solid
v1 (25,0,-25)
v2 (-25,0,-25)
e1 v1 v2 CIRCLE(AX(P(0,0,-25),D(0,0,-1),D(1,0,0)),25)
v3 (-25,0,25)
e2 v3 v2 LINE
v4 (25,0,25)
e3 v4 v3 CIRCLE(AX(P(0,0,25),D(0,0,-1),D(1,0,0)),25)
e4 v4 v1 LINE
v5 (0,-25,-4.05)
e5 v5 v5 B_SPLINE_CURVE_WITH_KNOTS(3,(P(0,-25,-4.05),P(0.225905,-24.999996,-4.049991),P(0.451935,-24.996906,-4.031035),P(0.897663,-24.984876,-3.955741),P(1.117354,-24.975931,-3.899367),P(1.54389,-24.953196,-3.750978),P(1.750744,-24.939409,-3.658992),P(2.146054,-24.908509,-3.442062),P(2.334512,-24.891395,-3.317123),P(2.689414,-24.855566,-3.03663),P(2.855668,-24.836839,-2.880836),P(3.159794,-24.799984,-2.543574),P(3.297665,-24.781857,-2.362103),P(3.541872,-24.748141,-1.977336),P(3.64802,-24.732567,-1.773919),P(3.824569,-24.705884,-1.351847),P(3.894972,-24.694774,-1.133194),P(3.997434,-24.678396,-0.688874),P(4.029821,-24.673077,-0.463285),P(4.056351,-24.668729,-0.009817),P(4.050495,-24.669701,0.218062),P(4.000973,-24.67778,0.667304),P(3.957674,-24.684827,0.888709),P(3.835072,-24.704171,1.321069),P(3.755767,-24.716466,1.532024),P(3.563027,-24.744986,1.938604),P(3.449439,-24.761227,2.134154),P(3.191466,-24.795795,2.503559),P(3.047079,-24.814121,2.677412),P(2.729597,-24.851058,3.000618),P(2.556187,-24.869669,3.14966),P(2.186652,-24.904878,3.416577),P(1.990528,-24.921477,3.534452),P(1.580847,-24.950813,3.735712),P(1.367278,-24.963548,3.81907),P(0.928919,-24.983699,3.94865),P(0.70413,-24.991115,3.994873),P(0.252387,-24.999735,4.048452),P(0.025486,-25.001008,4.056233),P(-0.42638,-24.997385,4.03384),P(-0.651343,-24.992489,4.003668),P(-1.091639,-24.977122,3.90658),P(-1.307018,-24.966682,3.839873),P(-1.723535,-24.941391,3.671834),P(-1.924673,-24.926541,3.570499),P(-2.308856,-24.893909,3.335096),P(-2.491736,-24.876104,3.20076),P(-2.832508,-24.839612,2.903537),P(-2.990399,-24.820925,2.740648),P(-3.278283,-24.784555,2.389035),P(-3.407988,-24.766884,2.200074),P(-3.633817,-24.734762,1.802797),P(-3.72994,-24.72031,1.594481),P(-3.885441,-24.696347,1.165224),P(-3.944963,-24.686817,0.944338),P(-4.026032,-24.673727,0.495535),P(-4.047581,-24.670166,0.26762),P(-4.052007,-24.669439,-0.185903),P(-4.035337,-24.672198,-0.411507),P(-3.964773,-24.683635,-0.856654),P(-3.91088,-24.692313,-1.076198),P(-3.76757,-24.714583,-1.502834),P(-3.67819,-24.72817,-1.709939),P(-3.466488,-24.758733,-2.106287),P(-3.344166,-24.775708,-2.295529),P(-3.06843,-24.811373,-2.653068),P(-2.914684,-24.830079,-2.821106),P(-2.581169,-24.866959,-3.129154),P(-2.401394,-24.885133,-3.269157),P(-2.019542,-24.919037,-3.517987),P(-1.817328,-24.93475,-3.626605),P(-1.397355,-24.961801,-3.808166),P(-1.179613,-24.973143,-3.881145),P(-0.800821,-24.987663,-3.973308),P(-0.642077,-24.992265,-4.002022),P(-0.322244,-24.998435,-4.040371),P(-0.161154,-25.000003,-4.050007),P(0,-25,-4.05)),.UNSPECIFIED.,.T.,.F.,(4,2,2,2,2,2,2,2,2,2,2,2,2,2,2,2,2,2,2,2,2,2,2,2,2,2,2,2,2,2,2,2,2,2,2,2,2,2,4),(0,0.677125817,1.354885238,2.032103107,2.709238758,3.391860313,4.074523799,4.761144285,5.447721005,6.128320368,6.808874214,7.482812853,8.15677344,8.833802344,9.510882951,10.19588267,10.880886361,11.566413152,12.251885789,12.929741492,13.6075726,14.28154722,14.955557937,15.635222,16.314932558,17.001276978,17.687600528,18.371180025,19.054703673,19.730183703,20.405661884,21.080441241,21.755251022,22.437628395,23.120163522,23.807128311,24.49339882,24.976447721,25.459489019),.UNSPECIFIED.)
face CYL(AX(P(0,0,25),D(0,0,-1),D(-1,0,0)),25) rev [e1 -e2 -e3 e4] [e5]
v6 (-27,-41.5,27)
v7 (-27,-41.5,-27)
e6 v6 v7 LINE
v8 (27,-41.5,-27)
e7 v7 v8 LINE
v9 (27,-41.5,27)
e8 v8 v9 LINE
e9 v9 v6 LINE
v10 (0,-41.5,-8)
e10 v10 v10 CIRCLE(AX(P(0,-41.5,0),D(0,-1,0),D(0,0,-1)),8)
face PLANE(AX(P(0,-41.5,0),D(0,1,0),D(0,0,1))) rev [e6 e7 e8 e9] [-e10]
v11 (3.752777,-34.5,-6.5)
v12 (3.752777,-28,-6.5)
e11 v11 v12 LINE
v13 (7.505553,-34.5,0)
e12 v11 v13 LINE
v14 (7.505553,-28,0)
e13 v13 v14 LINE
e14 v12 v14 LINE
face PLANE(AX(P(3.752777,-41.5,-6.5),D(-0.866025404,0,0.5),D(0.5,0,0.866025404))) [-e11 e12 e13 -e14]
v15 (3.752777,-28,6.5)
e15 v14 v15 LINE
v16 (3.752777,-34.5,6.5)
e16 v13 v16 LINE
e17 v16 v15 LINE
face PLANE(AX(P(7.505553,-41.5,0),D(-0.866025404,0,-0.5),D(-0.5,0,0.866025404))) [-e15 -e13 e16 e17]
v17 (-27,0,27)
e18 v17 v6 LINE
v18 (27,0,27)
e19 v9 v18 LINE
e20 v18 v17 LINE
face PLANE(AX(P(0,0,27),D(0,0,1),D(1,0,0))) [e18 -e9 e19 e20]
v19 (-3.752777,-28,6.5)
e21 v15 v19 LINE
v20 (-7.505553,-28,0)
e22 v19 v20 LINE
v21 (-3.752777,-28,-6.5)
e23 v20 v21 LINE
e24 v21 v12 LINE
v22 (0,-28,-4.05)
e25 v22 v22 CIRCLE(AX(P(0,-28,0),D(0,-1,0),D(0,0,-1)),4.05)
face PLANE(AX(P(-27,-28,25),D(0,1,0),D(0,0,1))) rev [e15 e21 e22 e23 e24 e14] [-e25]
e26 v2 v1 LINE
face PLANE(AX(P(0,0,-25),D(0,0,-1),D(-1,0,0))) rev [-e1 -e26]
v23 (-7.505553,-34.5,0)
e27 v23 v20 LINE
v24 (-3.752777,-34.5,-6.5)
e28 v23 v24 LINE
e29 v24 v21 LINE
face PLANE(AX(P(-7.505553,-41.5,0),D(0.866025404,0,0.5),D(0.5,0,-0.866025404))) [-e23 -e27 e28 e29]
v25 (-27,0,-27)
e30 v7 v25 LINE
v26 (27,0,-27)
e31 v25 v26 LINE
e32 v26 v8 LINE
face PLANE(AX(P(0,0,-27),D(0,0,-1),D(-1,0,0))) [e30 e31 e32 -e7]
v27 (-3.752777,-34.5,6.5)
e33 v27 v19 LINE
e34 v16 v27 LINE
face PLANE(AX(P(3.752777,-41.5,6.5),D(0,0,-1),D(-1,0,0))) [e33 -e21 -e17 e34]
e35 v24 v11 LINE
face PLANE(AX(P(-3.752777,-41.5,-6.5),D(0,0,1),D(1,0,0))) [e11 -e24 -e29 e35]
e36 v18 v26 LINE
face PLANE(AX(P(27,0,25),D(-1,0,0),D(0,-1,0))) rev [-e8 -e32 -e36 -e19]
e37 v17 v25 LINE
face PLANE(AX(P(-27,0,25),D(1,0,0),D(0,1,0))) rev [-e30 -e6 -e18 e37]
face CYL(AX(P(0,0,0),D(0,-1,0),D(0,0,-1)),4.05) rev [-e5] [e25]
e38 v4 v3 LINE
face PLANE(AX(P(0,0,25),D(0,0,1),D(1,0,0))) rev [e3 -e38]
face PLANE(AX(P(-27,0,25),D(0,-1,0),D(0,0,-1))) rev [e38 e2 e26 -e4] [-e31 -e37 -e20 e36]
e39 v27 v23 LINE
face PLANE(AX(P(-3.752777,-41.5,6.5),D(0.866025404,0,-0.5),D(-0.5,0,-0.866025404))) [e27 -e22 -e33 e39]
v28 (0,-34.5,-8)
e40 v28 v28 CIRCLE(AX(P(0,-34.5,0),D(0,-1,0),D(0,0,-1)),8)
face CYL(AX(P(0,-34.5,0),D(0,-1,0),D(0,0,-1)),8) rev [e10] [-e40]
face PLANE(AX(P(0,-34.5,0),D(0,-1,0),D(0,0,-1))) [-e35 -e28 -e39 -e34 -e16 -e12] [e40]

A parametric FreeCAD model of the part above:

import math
import FreeCAD as App
import Part
import Sketcher
Q = App.Units.Quantity


def add_polygon(sketch, points):
    """Adds a closed chain of lines whose ends are joined by coincident constraints."""
    first, n = sketch.GeometryCount, len(points)
    for a, b in zip(points, points[1:] + points[:1]):
        sketch.addGeometry(Part.LineSegment(App.Vector(*a, 0), App.Vector(*b, 0)), False)
    for i in range(n):
        sketch.addConstraint(Sketcher.Constraint("Coincident", first + i, 2, first + (i + 1) % n, 1))

doc = App.newDocument("Part")
body = doc.addObject("PartDesign::Body", "Body")

# Sketch on XY plane
sketch1 = body.newObject("Sketcher::SketchObject", "Sketch")
sketch1.AttachmentSupport = (doc.getObject("XY_Plane"), [""])
sketch1.MapMode = "FlatFace"
sketch1.addGeometry(Part.LineSegment(App.Vector(27, 0, 0), App.Vector(25, 0, 0)), False)
sketch1.addGeometry(Part.ArcOfCircle(Part.Circle(App.Vector(0, 0, 0), App.Vector(0, 0, 1), 25), math.radians(180), math.radians(360)), False)
sketch1.addGeometry(Part.LineSegment(App.Vector(-25, 0, 0), App.Vector(-27, 0, 0)), False)
sketch1.addGeometry(Part.LineSegment(App.Vector(-27, 0, 0), App.Vector(-27, -28, 0)), False)
sketch1.addGeometry(Part.LineSegment(App.Vector(-27, -28, 0), App.Vector(27, -28, 0)), False)
sketch1.addGeometry(Part.LineSegment(App.Vector(27, -28, 0), App.Vector(27, 0, 0)), False)
sketch1.addConstraint(Sketcher.Constraint("Coincident", 0, 2, 1, 2))
sketch1.addConstraint(Sketcher.Constraint("Coincident", 1, 1, 2, 1))
sketch1.addConstraint(Sketcher.Constraint("Coincident", 2, 2, 3, 1))
sketch1.addConstraint(Sketcher.Constraint("Coincident", 3, 2, 4, 1))
sketch1.addConstraint(Sketcher.Constraint("Coincident", 4, 2, 5, 1))
sketch1.addConstraint(Sketcher.Constraint("Coincident", 5, 2, 0, 1))
sketch1.addConstraint(Sketcher.Constraint("Horizontal", 0))
sketch1.addConstraint(Sketcher.Constraint("Horizontal", 2))
sketch1.addConstraint(Sketcher.Constraint("Vertical", 3))
sketch1.addConstraint(Sketcher.Constraint("Horizontal", 4))
sketch1.addConstraint(Sketcher.Constraint("Vertical", 5))
sketch1.addConstraint(Sketcher.Constraint("Coincident", 1, 3, -1, 1))
sketch1.addConstraint(Sketcher.Constraint("Symmetric", 2, 2, 5, 2, -1, 1))
sketch1.addConstraint(Sketcher.Constraint("PointOnObject", 0, 2, -1))
sketch1.addConstraint(Sketcher.Constraint("Radius", 1, 25.0))
sketch1.addConstraint(Sketcher.Constraint("DistanceX", 0, 2, 0, 1, 2.0))
sketch1.addConstraint(Sketcher.Constraint("DistanceY", 3, 2, 3, 1, 28.0))
pad1 = body.newObject("PartDesign::Pad", "Pad")
pad1.Profile = sketch1
pad1.Length = 50
pad1.Midplane = True

# Sketch on XY plane
sketch2 = body.newObject("Sketcher::SketchObject", "Sketch001")
sketch2.AttachmentSupport = (doc.getObject("XY_Plane"), [""])
sketch2.MapMode = "FlatFace"
sketch2.AttachmentOffset = App.Placement(App.Vector(0, 0, 25), App.Rotation())
add_polygon(sketch2, [(-27, 0), (-27, -28), (27, -28), (27, 0)])  # lines 0-3
sketch2.addConstraint(Sketcher.Constraint("Vertical", 0))
sketch2.addConstraint(Sketcher.Constraint("Horizontal", 1))
sketch2.addConstraint(Sketcher.Constraint("Vertical", 2))
sketch2.addConstraint(Sketcher.Constraint("Horizontal", 3))
sketch2.addConstraint(Sketcher.Constraint("Symmetric", 2, 2, 3, 2, -1, 1))
sketch2.addConstraint(Sketcher.Constraint("DistanceX", 1, 1, 1, 2, 54.0))
sketch2.addConstraint(Sketcher.Constraint("DistanceY", 0, 2, 0, 1, 28.0))
pad2 = body.newObject("PartDesign::Pad", "Pad001")
pad2.Profile = sketch2
pad2.Length = 2

# Sketch on XY plane
sketch3 = body.newObject("Sketcher::SketchObject", "Sketch002")
sketch3.AttachmentSupport = (doc.getObject("XY_Plane"), [""])
sketch3.MapMode = "FlatFace"
sketch3.AttachmentOffset = App.Placement(App.Vector(0, 0, -25), App.Rotation())
add_polygon(sketch3, [(27, 0), (27, -28), (-27, -28), (-27, 0)])  # lines 0-3
sketch3.addConstraint(Sketcher.Constraint("Vertical", 0))
sketch3.addConstraint(Sketcher.Constraint("Horizontal", 1))
sketch3.addConstraint(Sketcher.Constraint("Vertical", 2))
sketch3.addConstraint(Sketcher.Constraint("Horizontal", 3))
sketch3.addConstraint(Sketcher.Constraint("Symmetric", 2, 2, 3, 2, -1, 1))
sketch3.addConstraint(Sketcher.Constraint("DistanceX", 1, 2, 1, 1, 54.0))
sketch3.addConstraint(Sketcher.Constraint("DistanceY", 0, 2, 0, 1, 28.0))
pad3 = body.newObject("PartDesign::Pad", "Pad002")
pad3.Profile = sketch3
pad3.Length = 2
pad3.Reversed = True

# Sketch on XZ plane
sketch4 = body.newObject("Sketcher::SketchObject", "Sketch003")
sketch4.AttachmentSupport = (doc.getObject("XZ_Plane"), [""])
sketch4.MapMode = "FlatFace"
sketch4.AttachmentOffset = App.Placement(App.Vector(0, 0, 28), App.Rotation())
sketch4.addGeometry(Part.Circle(App.Vector(0, 0, 0), App.Vector(0, 0, 1), 4.05), False)
sketch4.addConstraint(Sketcher.Constraint("Coincident", 0, 3, -1, 1))
sketch4.addConstraint(Sketcher.Constraint("Diameter", 0, 8.1))
pocket1 = body.newObject("PartDesign::Pocket", "Pocket")
pocket1.Profile = sketch4
pocket1.Type = "ThroughAll"

# Sketch on XZ plane
sketch5 = body.newObject("Sketcher::SketchObject", "Sketch004")
sketch5.AttachmentSupport = (doc.getObject("XZ_Plane"), [""])
sketch5.MapMode = "FlatFace"
sketch5.AttachmentOffset = App.Placement(App.Vector(0, 0, 28), App.Rotation())
add_polygon(sketch5, [(-27, 27), (-27, -27), (27, -27), (27, 27)])  # lines 0-3
add_polygon(sketch5, [(-3.752777, -6.5), (-7.505553, 0), (-3.752777, 6.5), (3.752777, 6.5), (7.505553, 0), (3.752777, -6.5)])  # lines 4-9
sketch5.addConstraint(Sketcher.Constraint("Vertical", 0))
sketch5.addConstraint(Sketcher.Constraint("Horizontal", 1))
sketch5.addConstraint(Sketcher.Constraint("Vertical", 2))
sketch5.addConstraint(Sketcher.Constraint("Horizontal", 3))
sketch5.addConstraint(Sketcher.Constraint("Horizontal", 6))
sketch5.addConstraint(Sketcher.Constraint("Horizontal", 9))
sketch5.addConstraint(Sketcher.Constraint("Symmetric", 0, 2, 2, 2, -1, 1))
sketch5.addConstraint(Sketcher.Constraint("Symmetric", 4, 2, 7, 2, -1, 1))
sketch5.addConstraint(Sketcher.Constraint("Symmetric", 5, 2, 8, 2, -1, 1))
sketch5.addConstraint(Sketcher.Constraint("PointOnObject", 4, 2, -1))
sketch5.addConstraint(Sketcher.Constraint("Parallel", 4, 7))
sketch5.addConstraint(Sketcher.Constraint("Vertical", 6, 2, 8, 2))
sketch5.addConstraint(Sketcher.Constraint("Equal", 3, 0))
sketch5.addConstraint(Sketcher.Constraint("DistanceX", 1, 1, 1, 2, 54.0))
sketch5.addConstraint(Sketcher.Constraint("Angle", 4, Q("120 deg")))
sketch5.addConstraint(Sketcher.Constraint("DistanceY", 8, 2, 6, 2, 13.0))
sketch5.addConstraint(Sketcher.Constraint("DistanceX", 6, 1, 6, 2, 7.505554))
pad4 = body.newObject("PartDesign::Pad", "Pad003")
pad4.Profile = sketch5
pad4.Length = 13.5

# Sketch on XZ plane
sketch6 = body.newObject("Sketcher::SketchObject", "Sketch005")
sketch6.AttachmentSupport = (doc.getObject("XZ_Plane"), [""])
sketch6.MapMode = "FlatFace"
sketch6.AttachmentOffset = App.Placement(App.Vector(0, 0, 41.5), App.Rotation())
sketch6.addGeometry(Part.Circle(App.Vector(0, 0, 0), App.Vector(0, 0, 1), 8), False)
sketch6.addConstraint(Sketcher.Constraint("Coincident", 0, 3, -1, 1))
sketch6.addConstraint(Sketcher.Constraint("Diameter", 0, 16.0))
pocket2 = body.newObject("PartDesign::Pocket", "Pocket001")
pocket2.Profile = sketch6
pocket2.Length = 7

doc.recompute()
